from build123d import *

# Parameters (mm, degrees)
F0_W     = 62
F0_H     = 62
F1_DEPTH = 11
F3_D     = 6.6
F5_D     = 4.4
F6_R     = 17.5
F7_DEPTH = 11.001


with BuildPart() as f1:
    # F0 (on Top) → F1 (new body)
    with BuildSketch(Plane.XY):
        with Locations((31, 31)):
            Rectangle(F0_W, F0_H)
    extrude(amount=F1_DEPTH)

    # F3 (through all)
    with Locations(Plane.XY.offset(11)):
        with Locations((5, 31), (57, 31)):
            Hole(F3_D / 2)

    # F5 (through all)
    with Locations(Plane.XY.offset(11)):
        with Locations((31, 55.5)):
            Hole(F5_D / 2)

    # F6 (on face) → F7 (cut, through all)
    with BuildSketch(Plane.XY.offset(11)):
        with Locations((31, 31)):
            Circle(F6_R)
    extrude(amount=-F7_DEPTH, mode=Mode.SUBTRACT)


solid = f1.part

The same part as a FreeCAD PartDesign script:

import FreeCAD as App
import Part
import Sketcher

V = App.Vector

doc = App.newDocument("Part")
body = doc.addObject("PartDesign::Body", "Body")

sketch1 = body.newObject("Sketcher::SketchObject", "Sketch")
sketch1.AttachmentSupport = (doc.getObject("XY_Plane"), [""])
sketch1.MapMode = "FlatFace"
sketch1.addGeometry([
    Part.LineSegment(V(0, 62, 0), V(0, 0, 0)),
    Part.LineSegment(V(0, 0, 0), V(62, 0, 0)),
    Part.LineSegment(V(62, 0, 0), V(62, 62, 0)),
    Part.LineSegment(V(62, 62, 0), V(0, 62, 0)),
], False)
sketch1.addConstraint([
    Sketcher.Constraint("Coincident", 0, 2, 1, 1),
    Sketcher.Constraint("Coincident", 1, 2, 2, 1),
    Sketcher.Constraint("Coincident", 2, 2, 3, 1),
    Sketcher.Constraint("Coincident", 3, 2, 0, 1),
    Sketcher.Constraint("Vertical", 0),
    Sketcher.Constraint("Horizontal", 1),
    Sketcher.Constraint("Vertical", 2),
    Sketcher.Constraint("Horizontal", 3),
    Sketcher.Constraint("Coincident", 0, 2, -1, 1),
    Sketcher.Constraint("Equal", 3, 0),
    Sketcher.Constraint("DistanceX", 1, 1, 1, 2, 62.0),
])
pad1 = body.newObject("PartDesign::Pad", "Pad")
pad1.Profile = sketch1
pad1.Length = 11

sketch2 = body.newObject("Sketcher::SketchObject", "Sketch001")
sketch2.AttachmentSupport = (doc.getObject("XY_Plane"), [""])
sketch2.MapMode = "FlatFace"
sketch2.AttachmentOffset = App.Placement(V(0, 0, 11), App.Rotation())
sketch2.addGeometry([
    Part.Circle(V(5, 31, 0), V(0, 0, 1), 3.3),
    Part.Circle(V(57, 31, 0), V(0, 0, 1), 3.3),
], False)
sketch2.addConstraint([
    Sketcher.Constraint("Equal", 0, 1),
    Sketcher.Constraint("Horizontal", 0, 3, 1, 3),
    Sketcher.Constraint("Diameter", 0, 6.6),
    Sketcher.Constraint("DistanceX", -1, 1, 0, 3, 5.0),
    Sketcher.Constraint("DistanceY", -1, 1, 0, 3, 31.0),
    Sketcher.Constraint("DistanceX", -1, 1, 1, 3, 57.0),
])
doc.recompute()
hole = body.newObject("PartDesign::Hole", "Hole")
hole.Profile = sketch2
hole.ThreadType = "None"
hole.Diameter = 6.6
hole.DepthType = "ThroughAll"

sketch3 = body.newObject("Sketcher::SketchObject", "Sketch002")
sketch3.AttachmentSupport = (doc.getObject("XY_Plane"), [""])
sketch3.MapMode = "FlatFace"
sketch3.AttachmentOffset = App.Placement(V(0, 0, 11), App.Rotation())
sketch3.addGeometry(Part.Circle(V(31, 55.5, 0), V(0, 0, 1), 2.2), False)
sketch3.addConstraint([
    Sketcher.Constraint("Diameter", 0, 4.4),
    Sketcher.Constraint("DistanceX", -1, 1, 0, 3, 31.0),
    Sketcher.Constraint("DistanceY", -1, 1, 0, 3, 55.5),
])
doc.recompute()
hole2 = body.newObject("PartDesign::Hole", "Hole001")
hole2.Profile = sketch3
hole2.ThreadType = "None"
hole2.Diameter = 4.4
hole2.DepthType = "ThroughAll"

sketch4 = body.newObject("Sketcher::SketchObject", "Sketch003")
sketch4.AttachmentSupport = (doc.getObject("XY_Plane"), [""])
sketch4.MapMode = "FlatFace"
sketch4.AttachmentOffset = App.Placement(V(0, 0, 11), App.Rotation())
sketch4.addGeometry(Part.Circle(V(31, 31, 0), V(0, 0, 1), 17.5), False)
sketch4.addConstraint([
    Sketcher.Constraint("Diameter", 0, 35.0),
    Sketcher.Constraint("DistanceX", -1, 1, 0, 3, 31.0),
    Sketcher.Constraint("DistanceY", -1, 1, 0, 3, 31.0),
])
pocket1 = body.newObject("PartDesign::Pocket", "Pocket")
pocket1.Profile = sketch4
pocket1.Type = "ThroughAll"

doc.recompute()
